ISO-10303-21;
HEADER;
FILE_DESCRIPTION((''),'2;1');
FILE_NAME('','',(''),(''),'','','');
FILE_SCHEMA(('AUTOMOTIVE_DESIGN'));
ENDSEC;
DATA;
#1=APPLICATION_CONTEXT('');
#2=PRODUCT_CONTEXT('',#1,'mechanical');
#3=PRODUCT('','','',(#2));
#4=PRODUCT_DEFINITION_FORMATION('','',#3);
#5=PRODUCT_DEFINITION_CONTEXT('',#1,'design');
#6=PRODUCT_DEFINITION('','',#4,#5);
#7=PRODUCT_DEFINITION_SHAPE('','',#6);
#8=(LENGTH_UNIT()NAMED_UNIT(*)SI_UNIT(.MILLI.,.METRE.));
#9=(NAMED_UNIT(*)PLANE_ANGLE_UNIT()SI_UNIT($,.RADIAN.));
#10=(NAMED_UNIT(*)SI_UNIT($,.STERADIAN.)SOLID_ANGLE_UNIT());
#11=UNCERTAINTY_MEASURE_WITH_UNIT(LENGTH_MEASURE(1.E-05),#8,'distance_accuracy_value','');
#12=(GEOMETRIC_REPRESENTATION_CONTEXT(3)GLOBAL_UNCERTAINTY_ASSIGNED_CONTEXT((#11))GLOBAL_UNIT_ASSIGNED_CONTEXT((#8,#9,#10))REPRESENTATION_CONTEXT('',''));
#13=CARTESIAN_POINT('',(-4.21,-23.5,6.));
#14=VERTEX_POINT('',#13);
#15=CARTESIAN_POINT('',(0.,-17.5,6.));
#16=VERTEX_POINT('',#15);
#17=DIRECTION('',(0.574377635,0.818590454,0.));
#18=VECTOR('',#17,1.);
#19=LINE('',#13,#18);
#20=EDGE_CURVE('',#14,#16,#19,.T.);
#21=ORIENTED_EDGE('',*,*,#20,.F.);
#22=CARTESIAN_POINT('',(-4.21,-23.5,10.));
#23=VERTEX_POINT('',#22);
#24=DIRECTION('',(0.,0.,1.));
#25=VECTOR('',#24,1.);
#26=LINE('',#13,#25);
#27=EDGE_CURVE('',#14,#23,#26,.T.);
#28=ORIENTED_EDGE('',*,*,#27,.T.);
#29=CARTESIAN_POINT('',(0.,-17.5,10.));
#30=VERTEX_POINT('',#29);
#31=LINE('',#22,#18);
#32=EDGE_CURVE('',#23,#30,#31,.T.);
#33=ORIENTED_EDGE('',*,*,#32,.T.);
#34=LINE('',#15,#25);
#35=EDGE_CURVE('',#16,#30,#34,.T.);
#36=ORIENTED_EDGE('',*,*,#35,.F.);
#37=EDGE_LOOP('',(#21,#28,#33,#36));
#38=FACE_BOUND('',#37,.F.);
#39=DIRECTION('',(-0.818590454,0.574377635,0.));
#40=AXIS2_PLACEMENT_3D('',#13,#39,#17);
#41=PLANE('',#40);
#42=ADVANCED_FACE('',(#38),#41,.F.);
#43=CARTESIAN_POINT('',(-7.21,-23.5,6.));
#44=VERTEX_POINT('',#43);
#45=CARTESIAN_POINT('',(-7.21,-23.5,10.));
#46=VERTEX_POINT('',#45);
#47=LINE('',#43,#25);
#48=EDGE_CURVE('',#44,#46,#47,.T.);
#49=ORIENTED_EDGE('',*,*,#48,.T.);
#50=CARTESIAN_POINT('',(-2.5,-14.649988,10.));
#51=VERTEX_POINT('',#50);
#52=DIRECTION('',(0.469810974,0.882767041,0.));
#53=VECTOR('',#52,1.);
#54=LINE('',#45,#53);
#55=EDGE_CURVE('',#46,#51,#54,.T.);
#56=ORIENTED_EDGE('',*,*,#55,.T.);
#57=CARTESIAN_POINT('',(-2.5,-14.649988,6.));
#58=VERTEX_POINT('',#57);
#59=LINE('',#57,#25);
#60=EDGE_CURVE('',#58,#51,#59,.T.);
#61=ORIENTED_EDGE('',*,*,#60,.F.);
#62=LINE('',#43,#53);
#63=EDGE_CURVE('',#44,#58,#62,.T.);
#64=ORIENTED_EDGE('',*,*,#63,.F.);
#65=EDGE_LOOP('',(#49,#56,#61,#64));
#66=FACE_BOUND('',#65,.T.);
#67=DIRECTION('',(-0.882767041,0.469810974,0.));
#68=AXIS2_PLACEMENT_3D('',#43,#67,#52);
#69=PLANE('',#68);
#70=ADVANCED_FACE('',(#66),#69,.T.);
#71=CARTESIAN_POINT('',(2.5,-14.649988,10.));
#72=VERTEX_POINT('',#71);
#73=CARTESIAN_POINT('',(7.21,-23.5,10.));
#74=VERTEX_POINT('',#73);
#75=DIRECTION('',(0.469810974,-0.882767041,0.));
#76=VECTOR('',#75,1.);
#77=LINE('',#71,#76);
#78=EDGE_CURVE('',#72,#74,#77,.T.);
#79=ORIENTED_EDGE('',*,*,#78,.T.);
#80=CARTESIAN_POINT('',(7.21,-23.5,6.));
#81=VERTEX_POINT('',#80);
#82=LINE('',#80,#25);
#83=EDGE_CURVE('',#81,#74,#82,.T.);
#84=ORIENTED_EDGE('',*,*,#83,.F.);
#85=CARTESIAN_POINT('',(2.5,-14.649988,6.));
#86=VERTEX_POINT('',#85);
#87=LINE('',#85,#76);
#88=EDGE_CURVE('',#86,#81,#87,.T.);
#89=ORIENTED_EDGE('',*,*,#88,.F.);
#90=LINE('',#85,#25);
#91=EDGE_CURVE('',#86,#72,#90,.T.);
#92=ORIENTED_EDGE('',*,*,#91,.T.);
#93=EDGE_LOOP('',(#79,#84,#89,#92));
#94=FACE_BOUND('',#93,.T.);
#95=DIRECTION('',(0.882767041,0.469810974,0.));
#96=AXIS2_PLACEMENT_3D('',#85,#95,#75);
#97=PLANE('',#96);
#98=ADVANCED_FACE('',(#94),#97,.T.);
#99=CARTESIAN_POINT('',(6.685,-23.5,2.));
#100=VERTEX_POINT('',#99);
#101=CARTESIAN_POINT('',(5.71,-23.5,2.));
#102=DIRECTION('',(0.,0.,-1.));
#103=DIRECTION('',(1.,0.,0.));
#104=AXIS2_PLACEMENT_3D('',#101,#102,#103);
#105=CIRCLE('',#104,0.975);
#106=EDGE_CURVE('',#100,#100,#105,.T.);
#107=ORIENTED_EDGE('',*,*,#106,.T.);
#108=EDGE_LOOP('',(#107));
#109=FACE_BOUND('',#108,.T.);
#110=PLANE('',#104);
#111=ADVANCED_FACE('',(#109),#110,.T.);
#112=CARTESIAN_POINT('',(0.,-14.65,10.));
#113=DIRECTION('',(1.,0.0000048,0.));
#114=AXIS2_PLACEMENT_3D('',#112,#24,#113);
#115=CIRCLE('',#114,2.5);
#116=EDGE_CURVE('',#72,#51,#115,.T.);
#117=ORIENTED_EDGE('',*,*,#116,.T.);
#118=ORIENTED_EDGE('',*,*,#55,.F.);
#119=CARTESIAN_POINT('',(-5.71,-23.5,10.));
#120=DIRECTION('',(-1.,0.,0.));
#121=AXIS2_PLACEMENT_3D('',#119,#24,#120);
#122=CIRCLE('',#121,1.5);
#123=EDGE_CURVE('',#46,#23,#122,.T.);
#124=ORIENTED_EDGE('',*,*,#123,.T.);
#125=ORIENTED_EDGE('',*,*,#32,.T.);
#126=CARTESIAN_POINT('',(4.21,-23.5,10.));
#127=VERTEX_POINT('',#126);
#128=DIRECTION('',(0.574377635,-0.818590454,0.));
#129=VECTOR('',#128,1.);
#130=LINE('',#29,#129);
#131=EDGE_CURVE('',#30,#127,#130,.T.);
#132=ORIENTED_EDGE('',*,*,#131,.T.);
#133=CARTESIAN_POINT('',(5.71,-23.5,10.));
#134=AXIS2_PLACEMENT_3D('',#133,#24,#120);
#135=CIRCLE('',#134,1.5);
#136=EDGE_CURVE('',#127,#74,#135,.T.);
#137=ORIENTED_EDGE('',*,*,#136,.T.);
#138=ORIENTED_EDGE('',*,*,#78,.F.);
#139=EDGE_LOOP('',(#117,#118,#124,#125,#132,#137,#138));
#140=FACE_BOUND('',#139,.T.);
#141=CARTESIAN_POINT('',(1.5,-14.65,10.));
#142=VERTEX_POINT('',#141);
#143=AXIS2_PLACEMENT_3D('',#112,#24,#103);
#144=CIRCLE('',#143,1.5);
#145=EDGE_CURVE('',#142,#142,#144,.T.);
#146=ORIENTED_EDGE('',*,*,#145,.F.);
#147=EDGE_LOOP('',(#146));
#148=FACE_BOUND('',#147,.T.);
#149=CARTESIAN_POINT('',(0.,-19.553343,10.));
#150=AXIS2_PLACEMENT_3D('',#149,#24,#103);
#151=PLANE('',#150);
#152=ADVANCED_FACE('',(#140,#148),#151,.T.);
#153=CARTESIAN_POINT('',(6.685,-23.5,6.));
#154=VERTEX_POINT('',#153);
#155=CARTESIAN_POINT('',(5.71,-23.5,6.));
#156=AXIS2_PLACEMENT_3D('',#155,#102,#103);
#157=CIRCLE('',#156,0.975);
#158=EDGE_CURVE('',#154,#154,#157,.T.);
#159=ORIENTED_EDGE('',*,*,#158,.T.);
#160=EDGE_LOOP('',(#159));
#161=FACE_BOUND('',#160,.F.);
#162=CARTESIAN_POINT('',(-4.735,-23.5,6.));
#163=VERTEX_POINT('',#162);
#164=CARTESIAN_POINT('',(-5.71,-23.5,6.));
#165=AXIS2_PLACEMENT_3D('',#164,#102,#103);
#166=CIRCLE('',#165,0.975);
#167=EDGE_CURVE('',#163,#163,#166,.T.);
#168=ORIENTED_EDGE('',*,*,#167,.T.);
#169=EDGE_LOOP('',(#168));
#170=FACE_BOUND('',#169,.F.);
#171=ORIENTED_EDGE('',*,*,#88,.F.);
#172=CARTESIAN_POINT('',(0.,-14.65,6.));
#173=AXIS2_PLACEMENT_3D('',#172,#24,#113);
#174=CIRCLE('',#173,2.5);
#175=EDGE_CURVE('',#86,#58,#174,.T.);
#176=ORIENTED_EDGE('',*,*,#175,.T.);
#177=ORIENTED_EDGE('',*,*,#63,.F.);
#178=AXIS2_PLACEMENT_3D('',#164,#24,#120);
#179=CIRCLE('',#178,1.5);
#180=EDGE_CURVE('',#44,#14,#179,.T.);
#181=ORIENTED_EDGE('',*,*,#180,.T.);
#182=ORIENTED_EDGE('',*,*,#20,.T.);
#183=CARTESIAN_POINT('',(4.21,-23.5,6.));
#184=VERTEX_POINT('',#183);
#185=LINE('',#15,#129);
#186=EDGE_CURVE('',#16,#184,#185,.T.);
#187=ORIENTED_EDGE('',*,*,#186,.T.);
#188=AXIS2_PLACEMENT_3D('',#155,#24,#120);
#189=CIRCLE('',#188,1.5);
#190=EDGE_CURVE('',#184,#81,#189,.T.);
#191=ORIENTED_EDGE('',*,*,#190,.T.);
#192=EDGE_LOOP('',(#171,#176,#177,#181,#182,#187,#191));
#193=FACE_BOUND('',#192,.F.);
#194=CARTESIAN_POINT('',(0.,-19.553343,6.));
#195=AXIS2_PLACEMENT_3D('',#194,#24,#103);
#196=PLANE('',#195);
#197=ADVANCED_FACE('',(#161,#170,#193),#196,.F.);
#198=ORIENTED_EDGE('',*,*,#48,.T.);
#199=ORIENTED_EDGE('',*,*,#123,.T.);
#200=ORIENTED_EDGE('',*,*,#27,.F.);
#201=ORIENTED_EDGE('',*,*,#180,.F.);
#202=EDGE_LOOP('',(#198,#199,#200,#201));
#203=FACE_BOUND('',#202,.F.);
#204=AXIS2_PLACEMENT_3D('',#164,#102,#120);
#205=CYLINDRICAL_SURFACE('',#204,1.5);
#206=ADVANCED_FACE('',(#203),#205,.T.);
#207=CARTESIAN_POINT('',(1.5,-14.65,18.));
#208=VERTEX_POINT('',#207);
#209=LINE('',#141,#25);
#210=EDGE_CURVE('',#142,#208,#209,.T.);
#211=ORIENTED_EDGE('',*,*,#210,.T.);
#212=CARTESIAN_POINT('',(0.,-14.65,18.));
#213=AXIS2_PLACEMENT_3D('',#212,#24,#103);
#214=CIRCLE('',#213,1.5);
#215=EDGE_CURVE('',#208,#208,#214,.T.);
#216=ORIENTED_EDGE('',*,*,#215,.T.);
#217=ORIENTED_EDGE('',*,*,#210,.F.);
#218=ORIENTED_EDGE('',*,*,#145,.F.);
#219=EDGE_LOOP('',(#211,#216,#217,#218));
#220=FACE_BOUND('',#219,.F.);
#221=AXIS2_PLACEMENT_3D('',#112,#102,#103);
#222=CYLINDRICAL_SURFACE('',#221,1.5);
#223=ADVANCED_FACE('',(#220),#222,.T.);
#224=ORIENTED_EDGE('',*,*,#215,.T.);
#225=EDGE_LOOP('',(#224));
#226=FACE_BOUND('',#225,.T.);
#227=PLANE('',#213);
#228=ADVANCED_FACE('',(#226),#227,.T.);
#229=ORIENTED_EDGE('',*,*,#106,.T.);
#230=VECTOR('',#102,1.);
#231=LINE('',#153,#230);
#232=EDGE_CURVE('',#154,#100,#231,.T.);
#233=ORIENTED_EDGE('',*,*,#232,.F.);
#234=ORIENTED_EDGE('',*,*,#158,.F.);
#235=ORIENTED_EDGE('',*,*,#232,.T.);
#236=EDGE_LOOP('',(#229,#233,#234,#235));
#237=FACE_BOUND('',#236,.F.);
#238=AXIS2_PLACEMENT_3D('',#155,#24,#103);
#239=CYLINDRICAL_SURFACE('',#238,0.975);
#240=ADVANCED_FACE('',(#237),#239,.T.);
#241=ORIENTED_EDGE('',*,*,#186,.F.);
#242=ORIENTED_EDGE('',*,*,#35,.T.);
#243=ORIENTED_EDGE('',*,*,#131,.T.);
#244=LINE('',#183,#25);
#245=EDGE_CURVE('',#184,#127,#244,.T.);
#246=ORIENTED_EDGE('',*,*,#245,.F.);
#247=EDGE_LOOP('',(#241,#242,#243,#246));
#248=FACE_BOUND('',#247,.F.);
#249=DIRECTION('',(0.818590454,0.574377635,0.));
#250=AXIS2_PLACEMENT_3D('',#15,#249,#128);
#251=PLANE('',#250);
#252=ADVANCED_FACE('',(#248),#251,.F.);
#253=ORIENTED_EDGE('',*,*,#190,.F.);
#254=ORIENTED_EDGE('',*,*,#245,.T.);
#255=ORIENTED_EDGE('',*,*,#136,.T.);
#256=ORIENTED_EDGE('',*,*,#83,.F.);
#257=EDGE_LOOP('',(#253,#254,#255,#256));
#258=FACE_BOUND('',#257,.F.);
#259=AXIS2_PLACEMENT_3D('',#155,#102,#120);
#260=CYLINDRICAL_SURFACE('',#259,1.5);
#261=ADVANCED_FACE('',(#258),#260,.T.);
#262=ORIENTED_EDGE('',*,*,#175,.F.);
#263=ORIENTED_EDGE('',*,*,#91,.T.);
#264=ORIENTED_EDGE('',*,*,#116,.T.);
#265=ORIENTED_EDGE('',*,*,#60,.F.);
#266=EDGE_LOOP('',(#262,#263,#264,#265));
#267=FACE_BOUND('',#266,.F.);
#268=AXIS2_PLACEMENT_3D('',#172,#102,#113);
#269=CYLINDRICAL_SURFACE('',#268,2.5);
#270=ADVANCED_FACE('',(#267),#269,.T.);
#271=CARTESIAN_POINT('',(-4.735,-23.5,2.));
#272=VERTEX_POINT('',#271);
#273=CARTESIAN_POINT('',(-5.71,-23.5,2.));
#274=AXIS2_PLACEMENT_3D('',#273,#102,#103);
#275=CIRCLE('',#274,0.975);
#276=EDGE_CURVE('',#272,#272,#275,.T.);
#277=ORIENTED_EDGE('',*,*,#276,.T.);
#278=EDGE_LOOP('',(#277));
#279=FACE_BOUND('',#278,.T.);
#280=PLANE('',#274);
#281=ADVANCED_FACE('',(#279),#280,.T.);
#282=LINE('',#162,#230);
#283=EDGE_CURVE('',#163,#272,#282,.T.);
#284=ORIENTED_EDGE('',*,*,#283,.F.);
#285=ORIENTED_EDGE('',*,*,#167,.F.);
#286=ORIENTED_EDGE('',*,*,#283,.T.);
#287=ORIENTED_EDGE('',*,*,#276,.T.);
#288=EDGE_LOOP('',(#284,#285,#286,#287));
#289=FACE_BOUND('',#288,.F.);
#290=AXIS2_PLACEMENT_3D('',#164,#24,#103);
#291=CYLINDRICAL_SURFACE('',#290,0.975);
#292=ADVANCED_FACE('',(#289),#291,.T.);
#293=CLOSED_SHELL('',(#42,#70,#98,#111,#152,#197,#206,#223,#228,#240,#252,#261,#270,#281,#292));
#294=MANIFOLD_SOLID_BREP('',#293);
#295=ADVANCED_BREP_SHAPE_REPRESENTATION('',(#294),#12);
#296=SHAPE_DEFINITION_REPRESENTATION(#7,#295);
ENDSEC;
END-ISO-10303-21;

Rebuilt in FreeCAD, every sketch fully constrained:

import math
import FreeCAD as App
import Part
import Sketcher

doc = App.newDocument("Part")
body = doc.addObject("PartDesign::Body", "Body")

sketch1 = doc.addObject("Sketcher::SketchObject", "Sketch")
body.addObject(sketch1)
sketch1.AttachmentSupport = (doc.XY_Plane, [""])
sketch1.MapMode = "FlatFace"
sketch1.addGeometry(Part.ArcOfCircle(Part.Circle(App.Vector(5.7, 0, 0), App.Vector(0, 0, 1), 1.5), math.radians(180), math.radians(360)), False)
sketch1.addGeometry(Part.LineSegment(App.Vector(7.2, 0, 0), App.Vector(2.5, 8.9, 0)), False)
sketch1.addGeometry(Part.ArcOfCircle(Part.Circle(App.Vector(0, 8.8, 0), App.Vector(0, 0, 1), 2.5), math.radians(0), math.radians(180)), False)
sketch1.addGeometry(Part.LineSegment(App.Vector(-2.5, 8.9, 0), App.Vector(-7.2, 0, 0)), False)
sketch1.addGeometry(Part.ArcOfCircle(Part.Circle(App.Vector(-5.7, 0, 0), App.Vector(0, 0, 1), 1.5), math.radians(180), math.radians(360)), False)
sketch1.addGeometry(Part.LineSegment(App.Vector(-4.2, 0, 0), App.Vector(0, 6, 0)), False)
sketch1.addGeometry(Part.LineSegment(App.Vector(0, 6, 0), App.Vector(4.2, 0, 0)), False)
sketch1.addConstraint(Sketcher.Constraint("Coincident", 0, 2, 1, 1))
sketch1.addConstraint(Sketcher.Constraint("Coincident", 1, 2, 2, 1))
sketch1.addConstraint(Sketcher.Constraint("Coincident", 2, 2, 3, 1))
sketch1.addConstraint(Sketcher.Constraint("Coincident", 3, 2, 4, 1))
sketch1.addConstraint(Sketcher.Constraint("Coincident", 4, 2, 5, 1))
sketch1.addConstraint(Sketcher.Constraint("Coincident", 5, 2, 6, 1))
sketch1.addConstraint(Sketcher.Constraint("Coincident", 6, 2, 0, 1))
sketch1.addConstraint(Sketcher.Constraint("Equal", 0, 4))
sketch1.addConstraint(Sketcher.Constraint("Symmetric", 0, 3, 4, 3, -1, 1))
sketch1.addConstraint(Sketcher.Constraint("Symmetric", 1, 2, 2, 2, -2))
sketch1.addConstraint(Sketcher.Constraint("PointOnObject", 0, 3, -1))
sketch1.addConstraint(Sketcher.Constraint("PointOnObject", 0, 2, -1))
sketch1.addConstraint(Sketcher.Constraint("PointOnObject", 3, 2, -1))
sketch1.addConstraint(Sketcher.Constraint("PointOnObject", 4, 2, -1))
sketch1.addConstraint(Sketcher.Constraint("PointOnObject", 5, 2, -2))
sketch1.addConstraint(Sketcher.Constraint("PointOnObject", 6, 2, -1))
sketch1.addConstraint(Sketcher.Constraint("Radius", 0, 1.5))
sketch1.addConstraint(Sketcher.Constraint("Radius", 2, 2.5))
sketch1.addConstraint(Sketcher.Constraint("DistanceY", -1, 1, 5, 2, 6.0))
sketch1.addConstraint(Sketcher.Constraint("DistanceX", -1, 1, 0, 3, 5.71))
sketch1.addConstraint(Sketcher.Constraint("DistanceY", -1, 1, 2, 3, 8.85))
sketch1.addConstraint(Sketcher.Constraint("Distance", 1, 10.025309))
pad1 = doc.addObject("PartDesign::Pad", "Pad")
body.addObject(pad1)
pad1.Profile = sketch1
pad1.Length = 4

sketch2 = doc.addObject("Sketcher::SketchObject", "Sketch001")
body.addObject(sketch2)
sketch2.AttachmentSupport = (doc.XY_Plane, [""])
sketch2.MapMode = "FlatFace"
sketch2.AttachmentOffset = App.Placement(App.Vector(0, 0, 4), App.Rotation())
sketch2.addGeometry(Part.Circle(App.Vector(0, 8.8, 0), App.Vector(0, 0, 1), 1.5), False)
sketch2.addConstraint(Sketcher.Constraint("PointOnObject", 0, 3, -2))
sketch2.addConstraint(Sketcher.Constraint("Diameter", 0, 3.0))
sketch2.addConstraint(Sketcher.Constraint("DistanceY", -1, 1, 0, 3, 8.85))
pad2 = doc.addObject("PartDesign::Pad", "Pad001")
body.addObject(pad2)
pad2.Profile = sketch2
pad2.Length = 8

sketch3 = doc.addObject("Sketcher::SketchObject", "Sketch002")
body.addObject(sketch3)
sketch3.AttachmentSupport = (doc.XY_Plane, [""])
sketch3.MapMode = "FlatFace"
sketch3.addGeometry(Part.Circle(App.Vector(-5.7, 0, 0), App.Vector(0, 0, 1), 1), False)
sketch3.addGeometry(Part.Circle(App.Vector(5.7, 0, 0), App.Vector(0, 0, 1), 1), False)
sketch3.addConstraint(Sketcher.Constraint("Equal", 0, 1))
sketch3.addConstraint(Sketcher.Constraint("Symmetric", 0, 3, 1, 3, -1, 1))
sketch3.addConstraint(Sketcher.Constraint("PointOnObject", 0, 3, -1))
sketch3.addConstraint(Sketcher.Constraint("Diameter", 0, 1.95))
sketch3.addConstraint(Sketcher.Constraint("DistanceX", 0, 3, -1, 1, 5.71))
pad3 = doc.addObject("PartDesign::Pad", "Pad002")
body.addObject(pad3)
pad3.Profile = sketch3
pad3.Length = 4
pad3.Reversed = True
body2 = doc.addObject("PartDesign::Body", "Body001")
doc.recompute()

body.Placement = App.Placement(App.Vector(0, -23.5, 6), App.Rotation(App.Vector(0, 0, 1), 0))
boolean = doc.addObject("PartDesign::Boolean", "Boolean")
body2.addObject(boolean)
boolean.Type = "Fuse"
boolean.addObjects([body])

doc.recompute()
